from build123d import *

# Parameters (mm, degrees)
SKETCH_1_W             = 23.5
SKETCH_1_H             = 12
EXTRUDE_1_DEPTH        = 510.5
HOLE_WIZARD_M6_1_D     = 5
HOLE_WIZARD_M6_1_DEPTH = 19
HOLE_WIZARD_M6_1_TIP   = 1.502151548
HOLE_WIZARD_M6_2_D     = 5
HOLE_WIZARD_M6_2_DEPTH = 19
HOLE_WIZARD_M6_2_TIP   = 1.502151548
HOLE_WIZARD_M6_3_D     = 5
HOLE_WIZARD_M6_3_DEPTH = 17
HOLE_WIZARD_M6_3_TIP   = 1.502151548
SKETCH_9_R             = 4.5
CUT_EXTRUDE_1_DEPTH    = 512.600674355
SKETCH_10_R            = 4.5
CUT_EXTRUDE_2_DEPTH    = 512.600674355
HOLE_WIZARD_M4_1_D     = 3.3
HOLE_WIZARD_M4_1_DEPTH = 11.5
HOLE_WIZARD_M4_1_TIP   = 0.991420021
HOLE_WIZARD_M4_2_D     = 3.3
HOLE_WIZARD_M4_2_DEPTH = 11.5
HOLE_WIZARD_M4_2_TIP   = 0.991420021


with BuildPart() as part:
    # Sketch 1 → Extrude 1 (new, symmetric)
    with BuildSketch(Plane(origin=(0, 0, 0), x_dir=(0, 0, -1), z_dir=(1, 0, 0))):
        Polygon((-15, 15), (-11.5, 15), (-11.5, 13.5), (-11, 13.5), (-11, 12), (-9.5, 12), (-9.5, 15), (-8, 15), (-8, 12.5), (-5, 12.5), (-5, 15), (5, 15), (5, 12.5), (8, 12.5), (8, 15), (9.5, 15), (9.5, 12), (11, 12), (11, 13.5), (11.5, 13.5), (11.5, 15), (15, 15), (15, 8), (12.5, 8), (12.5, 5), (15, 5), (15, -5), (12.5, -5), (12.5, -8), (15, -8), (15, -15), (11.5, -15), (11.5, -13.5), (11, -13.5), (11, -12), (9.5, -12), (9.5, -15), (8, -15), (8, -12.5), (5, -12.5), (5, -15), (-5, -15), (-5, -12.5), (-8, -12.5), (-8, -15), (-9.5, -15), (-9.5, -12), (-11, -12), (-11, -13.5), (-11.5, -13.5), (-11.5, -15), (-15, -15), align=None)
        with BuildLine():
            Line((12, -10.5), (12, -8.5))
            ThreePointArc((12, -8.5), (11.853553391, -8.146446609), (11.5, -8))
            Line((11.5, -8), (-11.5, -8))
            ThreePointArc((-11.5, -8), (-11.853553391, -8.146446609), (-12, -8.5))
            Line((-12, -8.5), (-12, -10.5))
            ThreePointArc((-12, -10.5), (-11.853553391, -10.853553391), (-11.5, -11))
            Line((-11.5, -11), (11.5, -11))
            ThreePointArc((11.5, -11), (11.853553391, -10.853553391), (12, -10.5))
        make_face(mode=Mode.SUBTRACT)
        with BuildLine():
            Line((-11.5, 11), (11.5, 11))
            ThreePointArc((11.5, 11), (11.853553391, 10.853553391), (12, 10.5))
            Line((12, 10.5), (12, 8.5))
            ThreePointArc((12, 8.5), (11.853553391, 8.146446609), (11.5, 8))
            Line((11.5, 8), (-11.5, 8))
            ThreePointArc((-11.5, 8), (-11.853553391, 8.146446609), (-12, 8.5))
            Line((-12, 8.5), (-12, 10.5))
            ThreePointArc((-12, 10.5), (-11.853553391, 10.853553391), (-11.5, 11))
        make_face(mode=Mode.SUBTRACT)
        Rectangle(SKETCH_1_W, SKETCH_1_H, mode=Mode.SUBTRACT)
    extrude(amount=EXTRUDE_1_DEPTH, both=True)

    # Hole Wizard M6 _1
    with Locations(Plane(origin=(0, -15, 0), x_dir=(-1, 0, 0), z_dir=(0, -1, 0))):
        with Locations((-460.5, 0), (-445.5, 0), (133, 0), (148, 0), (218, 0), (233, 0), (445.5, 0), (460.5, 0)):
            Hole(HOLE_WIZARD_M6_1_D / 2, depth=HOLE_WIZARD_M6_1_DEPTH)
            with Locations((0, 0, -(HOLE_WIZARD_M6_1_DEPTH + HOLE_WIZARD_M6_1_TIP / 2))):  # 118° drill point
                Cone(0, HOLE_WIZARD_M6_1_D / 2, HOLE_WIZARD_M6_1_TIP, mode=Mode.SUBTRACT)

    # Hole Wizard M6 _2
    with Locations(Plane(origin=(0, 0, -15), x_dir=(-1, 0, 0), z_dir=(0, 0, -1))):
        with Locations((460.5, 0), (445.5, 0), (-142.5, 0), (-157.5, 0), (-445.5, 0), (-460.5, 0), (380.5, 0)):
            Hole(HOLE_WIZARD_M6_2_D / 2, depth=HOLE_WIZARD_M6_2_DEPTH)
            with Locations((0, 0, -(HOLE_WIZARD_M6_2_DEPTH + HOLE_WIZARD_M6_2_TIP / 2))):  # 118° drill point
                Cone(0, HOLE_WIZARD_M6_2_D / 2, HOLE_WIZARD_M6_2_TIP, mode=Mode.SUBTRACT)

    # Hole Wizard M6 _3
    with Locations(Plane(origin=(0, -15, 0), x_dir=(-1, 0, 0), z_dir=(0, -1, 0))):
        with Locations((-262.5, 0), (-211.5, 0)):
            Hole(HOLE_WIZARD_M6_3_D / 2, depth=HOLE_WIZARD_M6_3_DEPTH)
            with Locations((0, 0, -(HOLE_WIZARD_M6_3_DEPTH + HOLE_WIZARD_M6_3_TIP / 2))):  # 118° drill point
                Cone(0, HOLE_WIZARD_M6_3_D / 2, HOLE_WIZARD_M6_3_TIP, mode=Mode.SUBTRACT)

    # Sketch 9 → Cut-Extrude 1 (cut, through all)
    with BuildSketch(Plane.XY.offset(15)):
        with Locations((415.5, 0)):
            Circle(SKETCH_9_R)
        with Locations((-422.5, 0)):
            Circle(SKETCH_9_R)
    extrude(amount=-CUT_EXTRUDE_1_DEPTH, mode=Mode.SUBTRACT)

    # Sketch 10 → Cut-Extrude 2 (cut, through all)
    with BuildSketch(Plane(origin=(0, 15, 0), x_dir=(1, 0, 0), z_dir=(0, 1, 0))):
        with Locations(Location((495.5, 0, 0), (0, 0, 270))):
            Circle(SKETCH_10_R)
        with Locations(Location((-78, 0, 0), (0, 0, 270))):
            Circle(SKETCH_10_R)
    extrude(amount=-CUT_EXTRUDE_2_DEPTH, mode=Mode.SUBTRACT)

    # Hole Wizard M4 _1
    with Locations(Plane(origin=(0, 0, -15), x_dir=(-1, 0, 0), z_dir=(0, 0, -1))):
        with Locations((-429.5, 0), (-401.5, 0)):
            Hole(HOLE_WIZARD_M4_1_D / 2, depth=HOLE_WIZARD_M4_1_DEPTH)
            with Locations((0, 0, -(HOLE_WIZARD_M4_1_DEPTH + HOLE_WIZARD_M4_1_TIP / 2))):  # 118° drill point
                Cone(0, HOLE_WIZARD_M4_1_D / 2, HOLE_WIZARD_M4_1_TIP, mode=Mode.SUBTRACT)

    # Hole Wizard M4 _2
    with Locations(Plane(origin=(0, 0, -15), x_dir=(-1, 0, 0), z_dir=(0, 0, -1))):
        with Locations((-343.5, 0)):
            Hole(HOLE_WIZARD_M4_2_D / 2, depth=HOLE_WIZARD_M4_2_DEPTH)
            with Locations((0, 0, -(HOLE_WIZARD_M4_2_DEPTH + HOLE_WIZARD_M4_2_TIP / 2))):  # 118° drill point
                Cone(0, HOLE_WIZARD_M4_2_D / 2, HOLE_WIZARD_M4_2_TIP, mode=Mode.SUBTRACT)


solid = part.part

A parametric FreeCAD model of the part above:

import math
import FreeCAD as App
import Part
import Sketcher
Q = App.Units.Quantity


def add_polygon(sketch, points):
    """Adds a closed chain of lines whose ends are joined by coincident constraints."""
    first, n = sketch.GeometryCount, len(points)
    for a, b in zip(points, points[1:] + points[:1]):
        sketch.addGeometry(Part.LineSegment(App.Vector(*a, 0), App.Vector(*b, 0)), False)
    for i in range(n):
        sketch.addConstraint(Sketcher.Constraint("Coincident", first + i, 2, first + (i + 1) % n, 1))

doc = App.newDocument("Part")
body = doc.addObject("PartDesign::Body", "Body")

# Sketch on YZ plane
sketch1 = body.newObject("Sketcher::SketchObject", "Sketch")
sketch1.AttachmentSupport = (doc.getObject("YZ_Plane"), [""])
sketch1.MapMode = "FlatFace"
add_polygon(sketch1, [(15, 11.5), (15, 15), (-15, 15), (-15, 11.5), (-13.5, 11.5), (-13.5, 11), (-12, 11), (-12, 9.5), (-15, 9.5), (-15, 8), (-12.5, 8), (-12.5, 5), (-15, 5), (-15, -5), (-12.5, -5), (-12.5, -8), (-15, -8), (-15, -9.5), (-12, -9.5), (-12, -11), (-13.5, -11), (-13.5, -11.5), (-15, -11.5), (-15, -15), (-8, -15), (-8, -12.5), (-5, -12.5), (-5, -15), (5, -15), (5, -12.5), (8, -12.5), (8, -15), (15, -15), (15, -11.5), (13.5, -11.5), (13.5, -11), (12, -11), (12, -9.5), (15, -9.5), (15, -8), (12.5, -8), (12.5, -5), (15, -5), (15, 5), (12.5, 5), (12.5, 8), (15, 8), (15, 9.5), (12, 9.5), (12, 11), (13.5, 11), (13.5, 11.5)])  # lines 0-51
sketch1.addGeometry(Part.ArcOfCircle(Part.Circle(App.Vector(-10.5, -11.5, 0), App.Vector(0, 0, 1), 0.5), math.radians(180), math.radians(270)), False)  # 52
sketch1.addGeometry(Part.LineSegment(App.Vector(-11, -11.5, 0), App.Vector(-11, 11.5, 0)), False)  # 53
sketch1.addGeometry(Part.ArcOfCircle(Part.Circle(App.Vector(-10.5, 11.5, 0), App.Vector(0, 0, 1), 0.5), math.radians(90), math.radians(180)), False)  # 54
sketch1.addGeometry(Part.LineSegment(App.Vector(-10.5, 12, 0), App.Vector(-8.5, 12, 0)), False)  # 55
sketch1.addGeometry(Part.ArcOfCircle(Part.Circle(App.Vector(-8.5, 11.5, 0), App.Vector(0, 0, 1), 0.5), math.radians(0), math.radians(90)), False)  # 56
sketch1.addGeometry(Part.LineSegment(App.Vector(-8, 11.5, 0), App.Vector(-8, -11.5, 0)), False)  # 57
sketch1.addGeometry(Part.ArcOfCircle(Part.Circle(App.Vector(-8.5, -11.5, 0), App.Vector(0, 0, 1), 0.5), math.radians(-90), math.radians(0)), False)  # 58
sketch1.addGeometry(Part.LineSegment(App.Vector(-8.5, -12, 0), App.Vector(-10.5, -12, 0)), False)  # 59
add_polygon(sketch1, [(-6, 11.75), (6, 11.75), (6, -11.75), (-6, -11.75)])  # lines 60-63
sketch1.addGeometry(Part.LineSegment(App.Vector(11, 11.5, 0), App.Vector(11, -11.5, 0)), False)  # 64
sketch1.addGeometry(Part.ArcOfCircle(Part.Circle(App.Vector(10.5, -11.5, 0), App.Vector(0, 0, 1), 0.5), math.radians(-90), math.radians(0)), False)  # 65
sketch1.addGeometry(Part.LineSegment(App.Vector(10.5, -12, 0), App.Vector(8.5, -12, 0)), False)  # 66
sketch1.addGeometry(Part.ArcOfCircle(Part.Circle(App.Vector(8.5, -11.5, 0), App.Vector(0, 0, 1), 0.5), math.radians(180), math.radians(270)), False)  # 67
sketch1.addGeometry(Part.LineSegment(App.Vector(8, -11.5, 0), App.Vector(8, 11.5, 0)), False)  # 68
sketch1.addGeometry(Part.ArcOfCircle(Part.Circle(App.Vector(8.5, 11.5, 0), App.Vector(0, 0, 1), 0.5), math.radians(90), math.radians(180)), False)  # 69
sketch1.addGeometry(Part.LineSegment(App.Vector(8.5, 12, 0), App.Vector(10.5, 12, 0)), False)  # 70
sketch1.addGeometry(Part.ArcOfCircle(Part.Circle(App.Vector(10.5, 11.5, 0), App.Vector(0, 0, 1), 0.5), math.radians(0), math.radians(90)), False)  # 71
sketch1.addConstraint(Sketcher.Constraint("Tangent", 52, 1, 53, 1))
sketch1.addConstraint(Sketcher.Constraint("Tangent", 53, 2, 54, 2))
sketch1.addConstraint(Sketcher.Constraint("Tangent", 54, 1, 55, 1))
sketch1.addConstraint(Sketcher.Constraint("Tangent", 55, 2, 56, 2))
sketch1.addConstraint(Sketcher.Constraint("Tangent", 56, 1, 57, 1))
sketch1.addConstraint(Sketcher.Constraint("Tangent", 57, 2, 58, 2))
sketch1.addConstraint(Sketcher.Constraint("Tangent", 58, 1, 59, 1))
sketch1.addConstraint(Sketcher.Constraint("Tangent", 59, 2, 52, 2))
sketch1.addConstraint(Sketcher.Constraint("Tangent", 64, 2, 65, 2))
sketch1.addConstraint(Sketcher.Constraint("Tangent", 65, 1, 66, 1))
sketch1.addConstraint(Sketcher.Constraint("Tangent", 66, 2, 67, 2))
sketch1.addConstraint(Sketcher.Constraint("Tangent", 67, 1, 68, 1))
sketch1.addConstraint(Sketcher.Constraint("Tangent", 68, 2, 69, 2))
sketch1.addConstraint(Sketcher.Constraint("Tangent", 69, 1, 70, 1))
sketch1.addConstraint(Sketcher.Constraint("Tangent", 70, 2, 71, 2))
sketch1.addConstraint(Sketcher.Constraint("Tangent", 71, 1, 64, 1))
sketch1.addConstraint(Sketcher.Constraint("Vertical", 0))
sketch1.addConstraint(Sketcher.Constraint("Horizontal", 1))
sketch1.addConstraint(Sketcher.Constraint("Vertical", 2))
sketch1.addConstraint(Sketcher.Constraint("Horizontal", 3))
sketch1.addConstraint(Sketcher.Constraint("Vertical", 4))
sketch1.addConstraint(Sketcher.Constraint("Horizontal", 5))
sketch1.addConstraint(Sketcher.Constraint("Vertical", 6))
sketch1.addConstraint(Sketcher.Constraint("Horizontal", 7))
sketch1.addConstraint(Sketcher.Constraint("Vertical", 8))
sketch1.addConstraint(Sketcher.Constraint("Horizontal", 9))
sketch1.addConstraint(Sketcher.Constraint("Vertical", 10))
sketch1.addConstraint(Sketcher.Constraint("Horizontal", 11))
sketch1.addConstraint(Sketcher.Constraint("Vertical", 12))
sketch1.addConstraint(Sketcher.Constraint("Horizontal", 13))
sketch1.addConstraint(Sketcher.Constraint("Vertical", 14))
sketch1.addConstraint(Sketcher.Constraint("Horizontal", 15))
sketch1.addConstraint(Sketcher.Constraint("Vertical", 16))
sketch1.addConstraint(Sketcher.Constraint("Horizontal", 17))
sketch1.addConstraint(Sketcher.Constraint("Vertical", 18))
sketch1.addConstraint(Sketcher.Constraint("Horizontal", 19))
sketch1.addConstraint(Sketcher.Constraint("Vertical", 20))
sketch1.addConstraint(Sketcher.Constraint("Horizontal", 21))
sketch1.addConstraint(Sketcher.Constraint("Vertical", 22))
sketch1.addConstraint(Sketcher.Constraint("Horizontal", 23))
sketch1.addConstraint(Sketcher.Constraint("Vertical", 24))
sketch1.addConstraint(Sketcher.Constraint("Horizontal", 25))
sketch1.addConstraint(Sketcher.Constraint("Vertical", 26))
sketch1.addConstraint(Sketcher.Constraint("Horizontal", 27))
sketch1.addConstraint(Sketcher.Constraint("Vertical", 28))
sketch1.addConstraint(Sketcher.Constraint("Horizontal", 29))
sketch1.addConstraint(Sketcher.Constraint("Vertical", 30))
sketch1.addConstraint(Sketcher.Constraint("Horizontal", 31))
sketch1.addConstraint(Sketcher.Constraint("Vertical", 32))
sketch1.addConstraint(Sketcher.Constraint("Horizontal", 33))
sketch1.addConstraint(Sketcher.Constraint("Vertical", 34))
sketch1.addConstraint(Sketcher.Constraint("Horizontal", 35))
sketch1.addConstraint(Sketcher.Constraint("Vertical", 36))
sketch1.addConstraint(Sketcher.Constraint("Horizontal", 37))
sketch1.addConstraint(Sketcher.Constraint("Vertical", 38))
sketch1.addConstraint(Sketcher.Constraint("Horizontal", 39))
sketch1.addConstraint(Sketcher.Constraint("Vertical", 40))
sketch1.addConstraint(Sketcher.Constraint("Horizontal", 41))
sketch1.addConstraint(Sketcher.Constraint("Vertical", 42))
sketch1.addConstraint(Sketcher.Constraint("Horizontal", 43))
sketch1.addConstraint(Sketcher.Constraint("Vertical", 44))
sketch1.addConstraint(Sketcher.Constraint("Horizontal", 45))
sketch1.addConstraint(Sketcher.Constraint("Vertical", 46))
sketch1.addConstraint(Sketcher.Constraint("Horizontal", 47))
sketch1.addConstraint(Sketcher.Constraint("Vertical", 48))
sketch1.addConstraint(Sketcher.Constraint("Horizontal", 49))
sketch1.addConstraint(Sketcher.Constraint("Vertical", 50))
sketch1.addConstraint(Sketcher.Constraint("Horizontal", 51))
sketch1.addConstraint(Sketcher.Constraint("Vertical", 53))
sketch1.addConstraint(Sketcher.Constraint("Horizontal", 55))
sketch1.addConstraint(Sketcher.Constraint("Vertical", 57))
sketch1.addConstraint(Sketcher.Constraint("Horizontal", 59))
sketch1.addConstraint(Sketcher.Constraint("Horizontal", 60))
sketch1.addConstraint(Sketcher.Constraint("Vertical", 61))
sketch1.addConstraint(Sketcher.Constraint("Horizontal", 62))
sketch1.addConstraint(Sketcher.Constraint("Vertical", 63))
sketch1.addConstraint(Sketcher.Constraint("Vertical", 64))
sketch1.addConstraint(Sketcher.Constraint("Horizontal", 66))
sketch1.addConstraint(Sketcher.Constraint("Vertical", 68))
sketch1.addConstraint(Sketcher.Constraint("Horizontal", 70))
sketch1.addConstraint(Sketcher.Constraint("Equal", 52, 54))
sketch1.addConstraint(Sketcher.Constraint("Equal", 54, 56))
sketch1.addConstraint(Sketcher.Constraint("Equal", 56, 58))
sketch1.addConstraint(Sketcher.Constraint("Equal", 58, 65))
sketch1.addConstraint(Sketcher.Constraint("Equal", 65, 67))
sketch1.addConstraint(Sketcher.Constraint("Equal", 67, 69))
sketch1.addConstraint(Sketcher.Constraint("Equal", 69, 71))
sketch1.addConstraint(Sketcher.Constraint("Symmetric", 54, 3, 65, 3, -1, 1))
sketch1.addConstraint(Sketcher.Constraint("Symmetric", 58, 3, 69, 3, -1, 1))
sketch1.addConstraint(Sketcher.Constraint("Symmetric", 0, 2, 22, 2, -1, 1))
sketch1.addConstraint(Sketcher.Constraint("Symmetric", 1, 2, 31, 2, -1, 1))
sketch1.addConstraint(Sketcher.Constraint("Symmetric", 3, 2, 33, 2, -1, 1))
sketch1.addConstraint(Sketcher.Constraint("Symmetric", 5, 2, 35, 2, -1, 1))
sketch1.addConstraint(Sketcher.Constraint("Symmetric", 7, 2, 37, 2, -1, 1))
sketch1.addConstraint(Sketcher.Constraint("Symmetric", 9, 2, 39, 2, -1, 1))
sketch1.addConstraint(Sketcher.Constraint("Symmetric", 11, 2, 41, 2, -1, 1))
sketch1.addConstraint(Sketcher.Constraint("Symmetric", 13, 2, 43, 2, -1, 1))
sketch1.addConstraint(Sketcher.Constraint("Symmetric", 15, 2, 45, 2, -1, 1))
sketch1.addConstraint(Sketcher.Constraint("Symmetric", 17, 2, 47, 2, -1, 1))
sketch1.addConstraint(Sketcher.Constraint("Symmetric", 19, 2, 49, 2, -1, 1))
sketch1.addConstraint(Sketcher.Constraint("Symmetric", 60, 2, 62, 2, -1, 1))
sketch1.addConstraint(Sketcher.Constraint("Symmetric", 25, 2, 28, 2, -2))
sketch1.addConstraint(Sketcher.Constraint("Symmetric", 21, 2, 32, 2, -2))
sketch1.addConstraint(Sketcher.Constraint("Symmetric", 19, 2, 34, 2, -2))
sketch1.addConstraint(Sketcher.Constraint("Symmetric", 17, 2, 36, 2, -2))
sketch1.addConstraint(Sketcher.Constraint("Symmetric", 15, 2, 38, 2, -2))
sketch1.addConstraint(Sketcher.Constraint("Symmetric", 13, 2, 40, 2, -2))
sketch1.addConstraint(Sketcher.Constraint("Horizontal", 58, 3, 65, 3))
sketch1.addConstraint(Sketcher.Constraint("Horizontal", 71, 3, 2, 2))
sketch1.addConstraint(Sketcher.Constraint("Horizontal", 23, 2, 26, 2))
sketch1.addConstraint(Sketcher.Constraint("Horizontal", 3, 2, 50, 2))
sketch1.addConstraint(Sketcher.Constraint("Vertical", 2, 2, 7, 2))
sketch1.addConstraint(Sketcher.Constraint("Vertical", 8, 2, 11, 2))
sketch1.addConstraint(Sketcher.Constraint("Vertical", 24, 2, 56, 1))
sketch1.addConstraint(Sketcher.Constraint("Vertical", 30, 2, 67, 1))
sketch1.addConstraint(Sketcher.Constraint("Equal", 3, 5))
sketch1.addConstraint(Sketcher.Constraint("Equal", 17, 25))
sketch1.addConstraint(Sketcher.Constraint("Equal", 51, 6))
sketch1.addConstraint(Sketcher.Constraint("Equal", 6, 8))
sketch1.addConstraint(Sketcher.Constraint("Equal", 47, 10))
sketch1.addConstraint(Sketcher.Constraint("Equal", 27, 12))
sketch1.addConstraint(Sketcher.Constraint("Equal", 45, 24))
sketch1.addConstraint(Sketcher.Constraint("Radius", 52, Q("0.5 mm")))
sketch1.addConstraint(Sketcher.Constraint("DistanceX", 1, 2, 1, 1, Q("30 mm")))
sketch1.addConstraint(Sketcher.Constraint("DistanceX", 7, 2, 7, 1, Q("3 mm")))
sketch1.addConstraint(Sketcher.Constraint("DistanceX", 23, 1, 23, 2, Q("7 mm")))
sketch1.addConstraint(Sketcher.Constraint("DistanceX", 55, 1, 55, 2, Q("2 mm")))
sketch1.addConstraint(Sketcher.Constraint("DistanceX", 60, 1, 60, 2, Q("12 mm")))
sketch1.addConstraint(Sketcher.Constraint("DistanceY", 53, 1, 53, 2, Q("23 mm")))
sketch1.addConstraint(Sketcher.Constraint("DistanceX", 9, 1, 9, 2, Q("2.5 mm")))
sketch1.addConstraint(Sketcher.Constraint("DistanceY", 0, 1, 0, 2, Q("3.5 mm")))
sketch1.addConstraint(Sketcher.Constraint("DistanceY", 61, 2, 61, 1, Q("23.5 mm")))
pad1 = body.newObject("PartDesign::Pad", "Pad")
pad1.Profile = sketch1
pad1.Length = 1021
pad1.Midplane = True

# Sketch on XZ plane
sketch2 = body.newObject("Sketcher::SketchObject", "Sketch001")
sketch2.AttachmentSupport = (doc.getObject("XZ_Plane"), [""])
sketch2.MapMode = "FlatFace"
sketch2.AttachmentOffset = App.Placement(App.Vector(0, 0, 15), App.Rotation())
sketch2.addGeometry(Part.Circle(App.Vector(460.5, 0, 0), App.Vector(0, 0, 1), 2.5), False)
sketch2.addGeometry(Part.Circle(App.Vector(445.5, 0, 0), App.Vector(0, 0, 1), 2.5), False)
sketch2.addGeometry(Part.Circle(App.Vector(-133, 0, 0), App.Vector(0, 0, 1), 2.5), False)
sketch2.addGeometry(Part.Circle(App.Vector(-148, 0, 0), App.Vector(0, 0, 1), 2.5), False)
sketch2.addGeometry(Part.Circle(App.Vector(-218, 0, 0), App.Vector(0, 0, 1), 2.5), False)
sketch2.addGeometry(Part.Circle(App.Vector(-233, 0, 0), App.Vector(0, 0, 1), 2.5), False)
sketch2.addGeometry(Part.Circle(App.Vector(-445.5, 0, 0), App.Vector(0, 0, 1), 2.5), False)
sketch2.addGeometry(Part.Circle(App.Vector(-460.5, 0, 0), App.Vector(0, 0, 1), 2.5), False)
sketch2.addConstraint(Sketcher.Constraint("Equal", 0, 1))
sketch2.addConstraint(Sketcher.Constraint("Equal", 1, 2))
sketch2.addConstraint(Sketcher.Constraint("Equal", 2, 3))
sketch2.addConstraint(Sketcher.Constraint("Equal", 3, 4))
sketch2.addConstraint(Sketcher.Constraint("Equal", 4, 5))
sketch2.addConstraint(Sketcher.Constraint("Equal", 5, 6))
sketch2.addConstraint(Sketcher.Constraint("Equal", 6, 7))
sketch2.addConstraint(Sketcher.Constraint("Symmetric", 1, 3, 6, 3, -1, 1))
sketch2.addConstraint(Sketcher.Constraint("Symmetric", 0, 3, 7, 3, -1, 1))
sketch2.addConstraint(Sketcher.Constraint("PointOnObject", 0, 3, -1))
sketch2.addConstraint(Sketcher.Constraint("PointOnObject", 1, 3, -1))
sketch2.addConstraint(Sketcher.Constraint("PointOnObject", 2, 3, -1))
sketch2.addConstraint(Sketcher.Constraint("PointOnObject", 3, 3, -1))
sketch2.addConstraint(Sketcher.Constraint("PointOnObject", 4, 3, -1))
sketch2.addConstraint(Sketcher.Constraint("PointOnObject", 5, 3, -1))
sketch2.addConstraint(Sketcher.Constraint("Diameter", 0, Q("5 mm")))
sketch2.addConstraint(Sketcher.Constraint("DistanceX", 2, 3, -1, 1, Q("133 mm")))
sketch2.addConstraint(Sketcher.Constraint("DistanceX", 3, 3, -1, 1, Q("148 mm")))
sketch2.addConstraint(Sketcher.Constraint("DistanceX", 4, 3, -1, 1, Q("218 mm")))
sketch2.addConstraint(Sketcher.Constraint("DistanceX", 5, 3, -1, 1, Q("233 mm")))
sketch2.addConstraint(Sketcher.Constraint("DistanceX", 1, 3, 0, 3, Q("15 mm")))
sketch2.addConstraint(Sketcher.Constraint("DistanceX", 6, 3, 1, 3, Q("891 mm")))
doc.recompute()
hole = body.newObject("PartDesign::Hole", "Hole")
hole.Profile = sketch2
hole.ThreadType = "None"
hole.Diameter = 5
hole.DepthType = "Dimension"
hole.Depth = 19
hole.DrillPoint = "Angled"
hole.DrillPointAngle = 118

# Sketch on XY plane
sketch3 = body.newObject("Sketcher::SketchObject", "Sketch002")
sketch3.AttachmentSupport = (doc.getObject("XY_Plane"), [""])
sketch3.MapMode = "FlatFace"
sketch3.AttachmentOffset = App.Placement(App.Vector(0, 0, -15), App.Rotation())
sketch3.addGeometry(Part.Circle(App.Vector(-460.5, 0, 0), App.Vector(0, 0, 1), 2.5), False)
sketch3.addGeometry(Part.Circle(App.Vector(-445.5, 0, 0), App.Vector(0, 0, 1), 2.5), False)
sketch3.addGeometry(Part.Circle(App.Vector(142.5, 0, 0), App.Vector(0, 0, 1), 2.5), False)
sketch3.addGeometry(Part.Circle(App.Vector(157.5, 0, 0), App.Vector(0, 0, 1), 2.5), False)
sketch3.addGeometry(Part.Circle(App.Vector(445.5, 0, 0), App.Vector(0, 0, 1), 2.5), False)
sketch3.addGeometry(Part.Circle(App.Vector(460.5, 0, 0), App.Vector(0, 0, 1), 2.5), False)
sketch3.addGeometry(Part.Circle(App.Vector(-380.5, 0, 0), App.Vector(0, 0, 1), 2.5), False)
sketch3.addConstraint(Sketcher.Constraint("Equal", 0, 1))
sketch3.addConstraint(Sketcher.Constraint("Equal", 1, 2))
sketch3.addConstraint(Sketcher.Constraint("Equal", 2, 3))
sketch3.addConstraint(Sketcher.Constraint("Equal", 3, 4))
sketch3.addConstraint(Sketcher.Constraint("Equal", 4, 5))
sketch3.addConstraint(Sketcher.Constraint("Equal", 5, 6))
sketch3.addConstraint(Sketcher.Constraint("Symmetric", 1, 3, 4, 3, -1, 1))
sketch3.addConstraint(Sketcher.Constraint("Symmetric", 0, 3, 5, 3, -1, 1))
sketch3.addConstraint(Sketcher.Constraint("PointOnObject", 0, 3, -1))
sketch3.addConstraint(Sketcher.Constraint("PointOnObject", 1, 3, -1))
sketch3.addConstraint(Sketcher.Constraint("PointOnObject", 2, 3, -1))
sketch3.addConstraint(Sketcher.Constraint("PointOnObject", 3, 3, -1))
sketch3.addConstraint(Sketcher.Constraint("PointOnObject", 6, 3, -1))
sketch3.addConstraint(Sketcher.Constraint("Diameter", 0, Q("5 mm")))
sketch3.addConstraint(Sketcher.Constraint("DistanceX", 0, 3, 1, 3, Q("15 mm")))
sketch3.addConstraint(Sketcher.Constraint("DistanceX", 1, 3, 2, 3, Q("588 mm")))
sketch3.addConstraint(Sketcher.Constraint("DistanceX", 2, 3, 3, 3, Q("15 mm")))
sketch3.addConstraint(Sketcher.Constraint("DistanceX", 3, 3, 4, 3, Q("288 mm")))
sketch3.addConstraint(Sketcher.Constraint("DistanceX", 1, 3, 6, 3, Q("65 mm")))
doc.recompute()
hole2 = body.newObject("PartDesign::Hole", "Hole001")
hole2.Profile = sketch3
hole2.ThreadType = "None"
hole2.Diameter = 5
hole2.DepthType = "Dimension"
hole2.Depth = 19
hole2.DrillPoint = "Angled"
hole2.DrillPointAngle = 118
hole2.Reversed = True

# Sketch on XZ plane
sketch4 = body.newObject("Sketcher::SketchObject", "Sketch003")
sketch4.AttachmentSupport = (doc.getObject("XZ_Plane"), [""])
sketch4.MapMode = "FlatFace"
sketch4.AttachmentOffset = App.Placement(App.Vector(0, 0, 15), App.Rotation())
sketch4.addGeometry(Part.Circle(App.Vector(262.5, 0, 0), App.Vector(0, 0, 1), 2.5), False)
sketch4.addGeometry(Part.Circle(App.Vector(211.5, 0, 0), App.Vector(0, 0, 1), 2.5), False)
sketch4.addConstraint(Sketcher.Constraint("Equal", 0, 1))
sketch4.addConstraint(Sketcher.Constraint("PointOnObject", 0, 3, -1))
sketch4.addConstraint(Sketcher.Constraint("PointOnObject", 1, 3, -1))
sketch4.addConstraint(Sketcher.Constraint("Diameter", 0, Q("5 mm")))
sketch4.addConstraint(Sketcher.Constraint("DistanceX", 1, 3, 0, 3, Q("51 mm")))
sketch4.addConstraint(Sketcher.Constraint("DistanceX", -1, 1, 0, 3, Q("262.5 mm")))
doc.recompute()
hole3 = body.newObject("PartDesign::Hole", "Hole002")
hole3.Profile = sketch4
hole3.ThreadType = "None"
hole3.Diameter = 5
hole3.DepthType = "Dimension"
hole3.Depth = 17
hole3.DrillPoint = "Angled"
hole3.DrillPointAngle = 118

# Sketch on XY plane
sketch5 = body.newObject("Sketcher::SketchObject", "Sketch004")
sketch5.AttachmentSupport = (doc.getObject("XY_Plane"), [""])
sketch5.MapMode = "FlatFace"
sketch5.AttachmentOffset = App.Placement(App.Vector(0, 0, 15), App.Rotation())
sketch5.addGeometry(Part.Circle(App.Vector(415.5, 0, 0), App.Vector(0, 0, 1), 4.5), False)
sketch5.addGeometry(Part.Circle(App.Vector(-422.5, 0, 0), App.Vector(0, 0, 1), 4.5), False)
sketch5.addConstraint(Sketcher.Constraint("Equal", 0, 1))
sketch5.addConstraint(Sketcher.Constraint("PointOnObject", 0, 3, -1))
sketch5.addConstraint(Sketcher.Constraint("PointOnObject", 1, 3, -1))
sketch5.addConstraint(Sketcher.Constraint("Diameter", 0, Q("9 mm")))
sketch5.addConstraint(Sketcher.Constraint("DistanceX", 1, 3, 0, 3, Q("838 mm")))
sketch5.addConstraint(Sketcher.Constraint("DistanceX", -1, 1, 0, 3, Q("415.5 mm")))
pocket1 = body.newObject("PartDesign::Pocket", "Pocket")
pocket1.Profile = sketch5
pocket1.Type = "ThroughAll"

# Sketch on XZ plane
sketch6 = body.newObject("Sketcher::SketchObject", "Sketch005")
sketch6.AttachmentSupport = (doc.getObject("XZ_Plane"), [""])
sketch6.MapMode = "FlatFace"
sketch6.AttachmentOffset = App.Placement(App.Vector(0, 0, -15), App.Rotation())
sketch6.addGeometry(Part.Circle(App.Vector(495.5, 0, 0), App.Vector(0, 0, 1), 4.5), False)
sketch6.addGeometry(Part.Circle(App.Vector(-78, 0, 0), App.Vector(0, 0, 1), 4.5), False)
sketch6.addConstraint(Sketcher.Constraint("Equal", 0, 1))
sketch6.addConstraint(Sketcher.Constraint("PointOnObject", 0, 3, -1))
sketch6.addConstraint(Sketcher.Constraint("PointOnObject", 1, 3, -1))
sketch6.addConstraint(Sketcher.Constraint("Diameter", 0, Q("9 mm")))
sketch6.addConstraint(Sketcher.Constraint("DistanceX", 1, 3, -1, 1, Q("78 mm")))
sketch6.addConstraint(Sketcher.Constraint("DistanceX", -1, 1, 0, 3, Q("495.5 mm")))
pocket2 = body.newObject("PartDesign::Pocket", "Pocket001")
pocket2.Profile = sketch6
pocket2.Type = "ThroughAll"
pocket2.Reversed = True

# Sketch on XY plane
sketch7 = body.newObject("Sketcher::SketchObject", "Sketch006")
sketch7.AttachmentSupport = (doc.getObject("XY_Plane"), [""])
sketch7.MapMode = "FlatFace"
sketch7.AttachmentOffset = App.Placement(App.Vector(0, 0, -15), App.Rotation())
sketch7.addGeometry(Part.Circle(App.Vector(429.5, 0, 0), App.Vector(0, 0, 1), 1.6), False)
sketch7.addGeometry(Part.Circle(App.Vector(401.5, 0, 0), App.Vector(0, 0, 1), 1.6), False)
sketch7.addConstraint(Sketcher.Constraint("Equal", 0, 1))
sketch7.addConstraint(Sketcher.Constraint("PointOnObject", 0, 3, -1))
sketch7.addConstraint(Sketcher.Constraint("PointOnObject", 1, 3, -1))
sketch7.addConstraint(Sketcher.Constraint("Diameter", 0, Q("3.3 mm")))
sketch7.addConstraint(Sketcher.Constraint("DistanceX", 1, 3, 0, 3, Q("28 mm")))
sketch7.addConstraint(Sketcher.Constraint("DistanceX", -1, 1, 0, 3, Q("429.5 mm")))
doc.recompute()
hole4 = body.newObject("PartDesign::Hole", "Hole003")
hole4.Profile = sketch7
hole4.ThreadType = "None"
hole4.Diameter = 3.3
hole4.DepthType = "Dimension"
hole4.Depth = 11.5
hole4.DrillPoint = "Angled"
hole4.DrillPointAngle = 118
hole4.Reversed = True

# Sketch on XY plane
sketch8 = body.newObject("Sketcher::SketchObject", "Sketch007")
sketch8.AttachmentSupport = (doc.getObject("XY_Plane"), [""])
sketch8.MapMode = "FlatFace"
sketch8.AttachmentOffset = App.Placement(App.Vector(0, 0, -15), App.Rotation())
sketch8.addGeometry(Part.Circle(App.Vector(343.5, 0, 0), App.Vector(0, 0, 1), 1.6), False)
sketch8.addConstraint(Sketcher.Constraint("PointOnObject", 0, 3, -1))
sketch8.addConstraint(Sketcher.Constraint("Diameter", 0, Q("3.3 mm")))
sketch8.addConstraint(Sketcher.Constraint("DistanceX", -1, 1, 0, 3, Q("343.5 mm")))
doc.recompute()
hole5 = body.newObject("PartDesign::Hole", "Hole004")
hole5.Profile = sketch8
hole5.ThreadType = "None"
hole5.Diameter = 3.3
hole5.DepthType = "Dimension"
hole5.Depth = 11.5
hole5.DrillPoint = "Angled"
hole5.DrillPointAngle = 118
hole5.Reversed = True

doc.recompute()
